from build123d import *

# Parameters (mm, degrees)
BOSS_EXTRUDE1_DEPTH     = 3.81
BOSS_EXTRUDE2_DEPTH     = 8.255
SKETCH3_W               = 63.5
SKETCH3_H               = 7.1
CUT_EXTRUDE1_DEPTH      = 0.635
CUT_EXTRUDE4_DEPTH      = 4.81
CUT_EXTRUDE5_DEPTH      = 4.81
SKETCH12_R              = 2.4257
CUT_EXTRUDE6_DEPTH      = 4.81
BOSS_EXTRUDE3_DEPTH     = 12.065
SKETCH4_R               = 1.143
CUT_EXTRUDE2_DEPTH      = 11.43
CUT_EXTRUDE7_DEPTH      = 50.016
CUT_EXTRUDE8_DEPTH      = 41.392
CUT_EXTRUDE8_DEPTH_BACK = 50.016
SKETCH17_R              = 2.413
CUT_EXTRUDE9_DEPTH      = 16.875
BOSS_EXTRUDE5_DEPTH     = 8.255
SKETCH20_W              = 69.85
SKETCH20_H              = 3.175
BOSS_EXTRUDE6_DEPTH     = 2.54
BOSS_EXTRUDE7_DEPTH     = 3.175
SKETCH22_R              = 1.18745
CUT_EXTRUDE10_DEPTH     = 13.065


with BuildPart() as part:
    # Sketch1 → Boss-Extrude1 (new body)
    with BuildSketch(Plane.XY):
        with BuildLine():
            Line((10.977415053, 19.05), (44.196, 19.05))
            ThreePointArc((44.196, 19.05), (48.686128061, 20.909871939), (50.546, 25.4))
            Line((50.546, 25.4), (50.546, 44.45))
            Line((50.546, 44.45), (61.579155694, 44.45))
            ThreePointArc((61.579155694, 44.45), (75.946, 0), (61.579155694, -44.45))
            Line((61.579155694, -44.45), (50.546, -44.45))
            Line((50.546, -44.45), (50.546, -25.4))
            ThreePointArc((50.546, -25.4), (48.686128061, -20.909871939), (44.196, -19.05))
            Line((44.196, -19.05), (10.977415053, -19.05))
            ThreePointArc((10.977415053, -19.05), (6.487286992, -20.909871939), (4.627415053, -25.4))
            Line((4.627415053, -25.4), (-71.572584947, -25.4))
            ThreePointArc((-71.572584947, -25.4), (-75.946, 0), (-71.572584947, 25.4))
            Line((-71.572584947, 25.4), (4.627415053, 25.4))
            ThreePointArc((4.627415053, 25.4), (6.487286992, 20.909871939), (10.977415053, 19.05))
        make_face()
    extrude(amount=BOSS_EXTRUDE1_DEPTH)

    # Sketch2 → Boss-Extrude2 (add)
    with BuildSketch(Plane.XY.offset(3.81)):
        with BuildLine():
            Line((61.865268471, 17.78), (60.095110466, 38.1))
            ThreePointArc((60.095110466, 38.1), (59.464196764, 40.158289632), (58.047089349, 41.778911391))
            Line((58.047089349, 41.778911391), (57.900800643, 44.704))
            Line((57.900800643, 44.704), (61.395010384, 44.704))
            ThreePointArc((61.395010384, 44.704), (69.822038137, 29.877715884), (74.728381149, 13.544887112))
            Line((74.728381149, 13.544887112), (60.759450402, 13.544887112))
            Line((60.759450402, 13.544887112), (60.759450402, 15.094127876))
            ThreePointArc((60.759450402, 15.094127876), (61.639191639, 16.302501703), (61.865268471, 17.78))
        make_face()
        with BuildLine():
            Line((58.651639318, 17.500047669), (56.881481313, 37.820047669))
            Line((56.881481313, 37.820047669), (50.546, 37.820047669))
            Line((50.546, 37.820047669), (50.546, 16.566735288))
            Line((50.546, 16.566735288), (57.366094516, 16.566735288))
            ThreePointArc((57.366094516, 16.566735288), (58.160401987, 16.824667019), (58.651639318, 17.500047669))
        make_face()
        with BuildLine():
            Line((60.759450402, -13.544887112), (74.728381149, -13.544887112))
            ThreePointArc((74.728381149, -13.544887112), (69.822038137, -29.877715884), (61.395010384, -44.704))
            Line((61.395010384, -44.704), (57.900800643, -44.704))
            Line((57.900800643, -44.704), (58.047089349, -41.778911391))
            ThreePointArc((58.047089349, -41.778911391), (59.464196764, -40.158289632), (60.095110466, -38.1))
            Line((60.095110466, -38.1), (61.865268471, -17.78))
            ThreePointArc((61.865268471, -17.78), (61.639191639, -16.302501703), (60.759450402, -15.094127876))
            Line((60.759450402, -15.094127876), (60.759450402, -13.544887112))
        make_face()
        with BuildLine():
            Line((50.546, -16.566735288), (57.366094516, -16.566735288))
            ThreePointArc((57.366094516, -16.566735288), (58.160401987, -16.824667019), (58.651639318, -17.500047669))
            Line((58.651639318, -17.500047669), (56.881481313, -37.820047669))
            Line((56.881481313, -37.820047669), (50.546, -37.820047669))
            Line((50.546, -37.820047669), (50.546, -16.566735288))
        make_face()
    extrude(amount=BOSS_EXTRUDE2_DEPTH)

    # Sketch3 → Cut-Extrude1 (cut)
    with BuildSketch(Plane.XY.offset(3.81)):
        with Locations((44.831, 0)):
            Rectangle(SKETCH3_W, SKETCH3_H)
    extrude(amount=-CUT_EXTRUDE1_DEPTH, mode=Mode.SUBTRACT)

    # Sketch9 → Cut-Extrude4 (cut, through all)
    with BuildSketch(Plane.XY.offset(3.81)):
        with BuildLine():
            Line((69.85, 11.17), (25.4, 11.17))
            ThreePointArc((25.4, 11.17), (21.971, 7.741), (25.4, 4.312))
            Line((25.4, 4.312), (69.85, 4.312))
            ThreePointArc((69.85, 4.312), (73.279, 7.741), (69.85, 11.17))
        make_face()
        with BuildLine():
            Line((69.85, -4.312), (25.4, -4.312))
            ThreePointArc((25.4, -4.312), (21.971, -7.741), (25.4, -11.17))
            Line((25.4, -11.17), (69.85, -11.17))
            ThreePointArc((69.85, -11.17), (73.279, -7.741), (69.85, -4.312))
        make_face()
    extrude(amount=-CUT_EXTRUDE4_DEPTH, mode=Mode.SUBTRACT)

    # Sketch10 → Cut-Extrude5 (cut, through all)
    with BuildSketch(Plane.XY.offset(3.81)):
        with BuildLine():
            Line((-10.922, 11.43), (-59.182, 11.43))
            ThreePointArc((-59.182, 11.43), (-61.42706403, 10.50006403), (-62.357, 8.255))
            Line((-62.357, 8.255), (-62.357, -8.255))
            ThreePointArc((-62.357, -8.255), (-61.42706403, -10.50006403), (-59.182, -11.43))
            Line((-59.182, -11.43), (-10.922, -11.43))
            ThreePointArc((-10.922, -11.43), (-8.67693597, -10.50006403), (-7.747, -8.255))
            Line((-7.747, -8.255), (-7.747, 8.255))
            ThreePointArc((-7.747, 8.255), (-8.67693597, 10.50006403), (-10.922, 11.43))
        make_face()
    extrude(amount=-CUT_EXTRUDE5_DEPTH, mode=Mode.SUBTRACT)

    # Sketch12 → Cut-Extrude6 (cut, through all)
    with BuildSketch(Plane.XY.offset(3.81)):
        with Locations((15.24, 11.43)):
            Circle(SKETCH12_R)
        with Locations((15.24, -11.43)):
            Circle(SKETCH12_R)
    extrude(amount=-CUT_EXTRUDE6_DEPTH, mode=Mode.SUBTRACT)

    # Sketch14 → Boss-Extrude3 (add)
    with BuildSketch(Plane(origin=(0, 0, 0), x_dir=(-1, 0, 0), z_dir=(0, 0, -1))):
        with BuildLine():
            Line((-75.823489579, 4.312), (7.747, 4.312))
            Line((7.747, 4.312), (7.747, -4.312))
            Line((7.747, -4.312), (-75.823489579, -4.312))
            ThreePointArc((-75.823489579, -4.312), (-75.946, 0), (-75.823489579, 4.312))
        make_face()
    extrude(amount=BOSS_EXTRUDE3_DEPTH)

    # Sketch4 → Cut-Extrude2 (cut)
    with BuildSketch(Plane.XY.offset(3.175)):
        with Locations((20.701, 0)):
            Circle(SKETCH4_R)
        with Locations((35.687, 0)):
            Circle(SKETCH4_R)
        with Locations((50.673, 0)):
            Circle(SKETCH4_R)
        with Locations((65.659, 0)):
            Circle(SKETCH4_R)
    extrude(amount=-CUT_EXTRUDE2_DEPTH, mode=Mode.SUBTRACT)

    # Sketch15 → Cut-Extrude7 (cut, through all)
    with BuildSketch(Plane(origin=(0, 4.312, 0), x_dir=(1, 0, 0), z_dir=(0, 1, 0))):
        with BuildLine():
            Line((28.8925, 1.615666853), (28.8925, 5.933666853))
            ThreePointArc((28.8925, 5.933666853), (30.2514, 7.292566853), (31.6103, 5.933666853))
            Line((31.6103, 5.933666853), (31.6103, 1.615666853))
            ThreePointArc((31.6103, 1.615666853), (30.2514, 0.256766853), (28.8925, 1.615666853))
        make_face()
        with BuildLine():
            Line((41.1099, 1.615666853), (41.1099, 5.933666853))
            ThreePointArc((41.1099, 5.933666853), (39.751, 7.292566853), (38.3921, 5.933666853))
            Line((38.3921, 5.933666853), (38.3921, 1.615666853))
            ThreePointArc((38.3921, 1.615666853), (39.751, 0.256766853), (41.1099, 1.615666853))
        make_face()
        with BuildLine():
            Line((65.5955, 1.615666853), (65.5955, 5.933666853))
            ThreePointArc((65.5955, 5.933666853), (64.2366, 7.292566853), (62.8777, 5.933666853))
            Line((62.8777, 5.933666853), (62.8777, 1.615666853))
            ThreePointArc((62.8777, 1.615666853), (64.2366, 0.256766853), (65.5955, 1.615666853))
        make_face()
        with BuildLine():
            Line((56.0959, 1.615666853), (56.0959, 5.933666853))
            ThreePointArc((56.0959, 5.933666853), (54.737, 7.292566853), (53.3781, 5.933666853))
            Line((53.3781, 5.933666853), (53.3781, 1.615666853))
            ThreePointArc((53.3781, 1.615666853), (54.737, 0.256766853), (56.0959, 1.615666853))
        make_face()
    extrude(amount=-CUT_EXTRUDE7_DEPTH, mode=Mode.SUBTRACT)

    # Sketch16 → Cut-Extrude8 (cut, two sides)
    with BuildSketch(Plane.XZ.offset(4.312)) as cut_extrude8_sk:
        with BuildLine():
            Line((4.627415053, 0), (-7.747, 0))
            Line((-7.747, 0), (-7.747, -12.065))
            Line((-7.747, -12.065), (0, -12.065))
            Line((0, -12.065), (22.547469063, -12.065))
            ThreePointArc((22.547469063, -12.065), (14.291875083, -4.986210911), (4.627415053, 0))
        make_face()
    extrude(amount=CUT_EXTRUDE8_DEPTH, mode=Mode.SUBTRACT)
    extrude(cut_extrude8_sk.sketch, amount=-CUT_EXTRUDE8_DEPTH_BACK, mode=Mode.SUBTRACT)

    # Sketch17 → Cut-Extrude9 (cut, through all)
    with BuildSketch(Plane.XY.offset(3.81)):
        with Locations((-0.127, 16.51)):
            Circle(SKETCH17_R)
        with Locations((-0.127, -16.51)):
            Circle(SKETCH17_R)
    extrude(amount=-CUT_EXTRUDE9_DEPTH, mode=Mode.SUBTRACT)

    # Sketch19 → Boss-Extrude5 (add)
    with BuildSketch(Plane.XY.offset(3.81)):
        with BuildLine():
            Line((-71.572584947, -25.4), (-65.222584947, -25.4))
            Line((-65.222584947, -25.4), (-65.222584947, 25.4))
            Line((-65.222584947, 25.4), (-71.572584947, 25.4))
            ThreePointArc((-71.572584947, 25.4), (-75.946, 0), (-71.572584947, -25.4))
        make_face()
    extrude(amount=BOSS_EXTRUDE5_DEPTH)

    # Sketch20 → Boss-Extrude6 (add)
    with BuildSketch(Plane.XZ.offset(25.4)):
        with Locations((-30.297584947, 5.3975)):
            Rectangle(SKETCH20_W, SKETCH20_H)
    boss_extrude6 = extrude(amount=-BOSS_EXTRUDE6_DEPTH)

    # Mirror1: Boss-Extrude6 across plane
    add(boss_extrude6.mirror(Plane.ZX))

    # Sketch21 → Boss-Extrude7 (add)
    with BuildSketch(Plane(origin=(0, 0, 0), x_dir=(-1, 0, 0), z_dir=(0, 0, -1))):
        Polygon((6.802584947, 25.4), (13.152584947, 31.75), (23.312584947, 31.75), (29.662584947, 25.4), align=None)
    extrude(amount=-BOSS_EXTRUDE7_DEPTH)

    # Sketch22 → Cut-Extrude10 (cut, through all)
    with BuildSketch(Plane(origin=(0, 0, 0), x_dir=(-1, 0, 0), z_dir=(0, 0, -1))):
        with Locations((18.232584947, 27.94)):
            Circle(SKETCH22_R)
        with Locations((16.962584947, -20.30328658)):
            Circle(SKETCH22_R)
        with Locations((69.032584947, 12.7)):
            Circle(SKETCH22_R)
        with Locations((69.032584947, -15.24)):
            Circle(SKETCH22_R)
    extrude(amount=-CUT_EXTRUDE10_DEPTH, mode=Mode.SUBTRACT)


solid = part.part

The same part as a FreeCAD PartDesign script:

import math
import FreeCAD as App
import Part
import Sketcher

V = App.Vector
Q = App.Units.Quantity


def add_polygon(sketch, points):
    """Adds a closed chain of lines whose ends are joined by coincident constraints."""
    first, n = sketch.GeometryCount, len(points)
    for a, b in zip(points, points[1:] + points[:1]):
        sketch.addGeometry(Part.LineSegment(App.Vector(*a, 0), App.Vector(*b, 0)), False)
    for i in range(n):
        sketch.addConstraint(Sketcher.Constraint("Coincident", first + i, 2, first + (i + 1) % n, 1))

doc = App.newDocument("Part")
body = doc.addObject("PartDesign::Body", "Body")

sketch1 = doc.addObject("Sketcher::SketchObject", "Sketch")
body.addObject(sketch1)
sketch1.AttachmentSupport = (doc.XY_Plane, [""])
sketch1.MapMode = "FlatFace"
sketch1.addGeometry([
    Part.LineSegment(V(44, 19, 0), V(11, 19, 0)),
    Part.ArcOfCircle(Part.Circle(V(11, 25, 0), V(0, 0, 1), 6), math.radians(180), math.radians(270)),
    Part.LineSegment(V(5, 25, 0), V(-72, 25, 0)),
    Part.ArcOfCircle(Part.Circle(V(0, 0, 0), V(0, 0, 1), 76), math.radians(160), math.radians(200)),
    Part.LineSegment(V(-72, -25, 0), V(5, -25, 0)),
    Part.ArcOfCircle(Part.Circle(V(11, -25, 0), V(0, 0, 1), 6), math.radians(90), math.radians(180)),
    Part.LineSegment(V(11, -19, 0), V(44, -19, 0)),
    Part.ArcOfCircle(Part.Circle(V(44, -25, 0), V(0, 0, 1), 6), math.radians(0), math.radians(90)),
    Part.LineSegment(V(51, -25, 0), V(51, -44, 0)),
    Part.LineSegment(V(51, -44, 0), V(62, -44, 0)),
    Part.ArcOfCircle(Part.Circle(V(0, 0, 0), V(0, 0, 1), 76), math.radians(-36), math.radians(36)),
    Part.LineSegment(V(62, 44, 0), V(51, 44, 0)),
    Part.LineSegment(V(51, 44, 0), V(51, 25, 0)),
    Part.ArcOfCircle(Part.Circle(V(44, 25, 0), V(0, 0, 1), 6), math.radians(-90), math.radians(0)),
], False)
sketch1.addConstraint([
    Sketcher.Constraint("Tangent", 0, 2, 1, 2),
    Sketcher.Constraint("Coincident", 1, 1, 2, 1),
    Sketcher.Constraint("Coincident", 2, 2, 3, 1),
    Sketcher.Constraint("Coincident", 3, 2, 4, 1),
    Sketcher.Constraint("Coincident", 4, 2, 5, 2),
    Sketcher.Constraint("Tangent", 5, 1, 6, 1),
    Sketcher.Constraint("Tangent", 6, 2, 7, 2),
    Sketcher.Constraint("Tangent", 7, 1, 8, 1),
    Sketcher.Constraint("Coincident", 8, 2, 9, 1),
    Sketcher.Constraint("Coincident", 9, 2, 10, 1),
    Sketcher.Constraint("Coincident", 10, 2, 11, 1),
    Sketcher.Constraint("Coincident", 11, 2, 12, 1),
    Sketcher.Constraint("Tangent", 12, 2, 13, 2),
    Sketcher.Constraint("Tangent", 13, 1, 0, 1),
    Sketcher.Constraint("Horizontal", 0),
    Sketcher.Constraint("Horizontal", 2),
    Sketcher.Constraint("Horizontal", 4),
    Sketcher.Constraint("Horizontal", 6),
    Sketcher.Constraint("Vertical", 8),
    Sketcher.Constraint("Horizontal", 9),
    Sketcher.Constraint("Horizontal", 11),
    Sketcher.Constraint("Vertical", 12),
    Sketcher.Constraint("Coincident", 3, 3, -1, 1),
    Sketcher.Constraint("Coincident", 10, 3, -1, 1),
    Sketcher.Constraint("Equal", 1, 5),
    Sketcher.Constraint("Equal", 5, 7),
    Sketcher.Constraint("Equal", 3, 10),
    Sketcher.Constraint("Equal", 7, 13),
    Sketcher.Constraint("Symmetric", 1, 3, 5, 3, -1),
    Sketcher.Constraint("Symmetric", 8, 2, 11, 2, -1),
    Sketcher.Constraint("Horizontal", 13, 3, 1, 1),
    Sketcher.Constraint("Horizontal", 7, 3, 3, 2),
    Sketcher.Constraint("DistanceX", 2, 2, 2, 1, Q("3 in")),
    Sketcher.Constraint("Radius", 1, Q("0.25 in")),
    Sketcher.Constraint("Radius", 3, Q("2.99 in")),
    Sketcher.Constraint("DistanceY", -1, 1, 1, 3, Q("1 in")),
    Sketcher.Constraint("DistanceY", 8, 2, 6, 2, Q("1 in")),
    Sketcher.Constraint("DistanceX", -1, 1, 7, 3, Q("1.74 in")),
])
pad1 = doc.addObject("PartDesign::Pad", "Pad")
body.addObject(pad1)
pad1.Profile = sketch1
pad1.Length = Q("0.15 in")

sketch2 = doc.addObject("Sketcher::SketchObject", "Sketch001")
body.addObject(sketch2)
sketch2.AttachmentSupport = (doc.XY_Plane, [""])
sketch2.MapMode = "FlatFace"
sketch2.AttachmentOffset = App.Placement(V(0, 0, 0.15 * 25.4), App.Rotation())
sketch2.addGeometry([
    Part.LineSegment(V(60.1, 38.1, 0), V(61.9, 17.8, 0)),
    Part.ArcOfCircle(Part.Circle(V(58.7, 17.5, 0), V(0, 0, 1), 3.2), math.radians(-50), math.radians(5)),
    Part.LineSegment(V(60.8, 15.1, 0), V(60.8, 13.5, 0)),
    Part.LineSegment(V(60.8, 13.5, 0), V(74.7, 13.5, 0)),
    Part.ArcOfCircle(Part.Circle(V(0, 0, 0), V(0, 0, 1), 75.9), math.radians(10), math.radians(36)),
    Part.LineSegment(V(61.4, 44.7, 0), V(57.9, 44.7, 0)),
    Part.LineSegment(V(57.9, 44.7, 0), V(58, 41.8, 0)),
    Part.ArcOfCircle(Part.Circle(V(55, 37.7, 0), V(0, 0, 1), 5.2), math.radians(5), math.radians(53)),
    Part.LineSegment(V(58.7, 17.5, 0), V(56.9, 37.8, 0)),
    Part.LineSegment(V(56.9, 37.8, 0), V(50.5, 37.8, 0)),
    Part.LineSegment(V(50.5, 37.8, 0), V(50.5, 16.6, 0)),
    Part.LineSegment(V(50.5, 16.6, 0), V(57.4, 16.6, 0)),
    Part.ArcOfCircle(Part.Circle(V(57.4, 17.9, 0), V(0, 0, 1), 1.4), math.radians(-90), math.radians(-18)),
    Part.LineSegment(V(74.7, -13.5, 0), V(60.8, -13.5, 0)),
    Part.LineSegment(V(60.8, -13.5, 0), V(60.8, -15.1, 0)),
    Part.ArcOfCircle(Part.Circle(V(58.7, -17.5, 0), V(0, 0, 1), 3.2), math.radians(-5), math.radians(50)),
    Part.LineSegment(V(61.9, -17.8, 0), V(60.1, -38.1, 0)),
    Part.ArcOfCircle(Part.Circle(V(55, -37.7, 0), V(0, 0, 1), 5.2), math.radians(-53), math.radians(-5)),
    Part.LineSegment(V(58, -41.8, 0), V(57.9, -44.7, 0)),
    Part.LineSegment(V(57.9, -44.7, 0), V(61.4, -44.7, 0)),
    Part.ArcOfCircle(Part.Circle(V(0, 0, 0), V(0, 0, 1), 75.9), math.radians(-36), math.radians(-10)),
    Part.LineSegment(V(57.4, -16.6, 0), V(50.5, -16.6, 0)),
    Part.LineSegment(V(50.5, -16.6, 0), V(50.5, -37.8, 0)),
    Part.LineSegment(V(50.5, -37.8, 0), V(56.9, -37.8, 0)),
    Part.LineSegment(V(56.9, -37.8, 0), V(58.7, -17.5, 0)),
    Part.ArcOfCircle(Part.Circle(V(57.4, -17.9, 0), V(0, 0, 1), 1.4), math.radians(18), math.radians(90)),
], False)
sketch2.addConstraint([
    Sketcher.Constraint("Tangent", 0, 2, 1, 2),
    Sketcher.Constraint("Coincident", 1, 1, 2, 1),
    Sketcher.Constraint("Coincident", 2, 2, 3, 1),
    Sketcher.Constraint("Coincident", 3, 2, 4, 1),
    Sketcher.Constraint("Coincident", 4, 2, 5, 1),
    Sketcher.Constraint("Coincident", 5, 2, 6, 1),
    Sketcher.Constraint("Coincident", 6, 2, 7, 2),
    Sketcher.Constraint("Tangent", 7, 1, 0, 1),
    Sketcher.Constraint("Coincident", 8, 2, 9, 1),
    Sketcher.Constraint("Coincident", 9, 2, 10, 1),
    Sketcher.Constraint("Coincident", 10, 2, 11, 1),
    Sketcher.Constraint("Tangent", 11, 2, 12, 1),
    Sketcher.Constraint("Coincident", 12, 2, 8, 1),
    Sketcher.Constraint("Coincident", 13, 2, 14, 1),
    Sketcher.Constraint("Coincident", 14, 2, 15, 2),
    Sketcher.Constraint("Tangent", 15, 1, 16, 1),
    Sketcher.Constraint("Tangent", 16, 2, 17, 2),
    Sketcher.Constraint("Coincident", 17, 1, 18, 1),
    Sketcher.Constraint("Coincident", 18, 2, 19, 1),
    Sketcher.Constraint("Coincident", 19, 2, 20, 1),
    Sketcher.Constraint("Coincident", 20, 2, 13, 1),
    Sketcher.Constraint("Coincident", 21, 2, 22, 1),
    Sketcher.Constraint("Coincident", 22, 2, 23, 1),
    Sketcher.Constraint("Coincident", 23, 2, 24, 1),
    Sketcher.Constraint("Coincident", 24, 2, 25, 1),
    Sketcher.Constraint("Tangent", 25, 2, 21, 1),
    Sketcher.Constraint("Vertical", 2),
    Sketcher.Constraint("Horizontal", 3),
    Sketcher.Constraint("Horizontal", 5),
    Sketcher.Constraint("Horizontal", 9),
    Sketcher.Constraint("Vertical", 10),
    Sketcher.Constraint("Horizontal", 11),
    Sketcher.Constraint("Horizontal", 13),
    Sketcher.Constraint("Vertical", 14),
    Sketcher.Constraint("Horizontal", 19),
    Sketcher.Constraint("Horizontal", 21),
    Sketcher.Constraint("Vertical", 22),
    Sketcher.Constraint("Horizontal", 23),
    Sketcher.Constraint("Coincident", 4, 3, -1, 1),
    Sketcher.Constraint("Coincident", 20, 3, -1, 1),
    Sketcher.Constraint("Equal", 1, 15),
    Sketcher.Constraint("Equal", 7, 17),
    Sketcher.Constraint("Equal", 4, 20),
    Sketcher.Constraint("Equal", 12, 25),
    Sketcher.Constraint("Symmetric", 1, 3, 15, 3, -1),
    Sketcher.Constraint("Symmetric", 7, 3, 17, 3, -1),
    Sketcher.Constraint("Symmetric", 12, 3, 25, 3, -1),
    Sketcher.Constraint("Symmetric", 2, 2, 13, 2, -1),
    Sketcher.Constraint("Symmetric", 5, 2, 18, 2, -1),
    Sketcher.Constraint("Symmetric", 9, 2, 22, 2, -1),
    Sketcher.Constraint("Parallel", 0, 8),
    Sketcher.Constraint("Parallel", 16, 24),
    Sketcher.Constraint("Vertical", 6, 2, 17, 1),
    Sketcher.Constraint("Vertical", 8, 2, 23, 2),
    Sketcher.Constraint("Equal", 0, 8),
    Sketcher.Constraint("Radius", 4, Q("2.99 in")),
    Sketcher.Constraint("DistanceY", -1, 1, 0, 2, Q("0.7 in")),
    Sketcher.Constraint("DistanceY", -1, 1, 7, 1, Q("1.5 in")),
    Sketcher.Constraint("DistanceY", -1, 1, 4, 2, Q("1.76 in")),
    Sketcher.Constraint("DistanceX", -1, 1, 9, 2, Q("1.99 in")),
    Sketcher.Constraint("Radius", 12, 1.352011),
    Sketcher.Constraint("Radius", 1, 3.160443),
    Sketcher.Constraint("Radius", 7, 5.150666),
    Sketcher.Constraint("DistanceY", 1, 3, 7, 3, Q("0.7931999 in")),
    Sketcher.Constraint("DistanceX", 3, 1, 3, 2, 13.968931),
    Sketcher.Constraint("DistanceX", 5, 2, 5, 1, 3.49421),
    Sketcher.Constraint("DistanceX", 9, 2, 9, 1, 6.335481),
    Sketcher.Constraint("DistanceY", 2, 2, 2, 1, 1.549241),
    Sketcher.Constraint("DistanceX", 1, 3, 1, 1, 2.042701),
    Sketcher.Constraint("DistanceY", 12, 2, 12, 3, 0.418699),
    Sketcher.Constraint("DistanceX", -1, 1, 6, 2, 58.047089),
    Sketcher.Constraint("DistanceY", 12, 3, 7, 3, 19.734251),
])
pad2 = doc.addObject("PartDesign::Pad", "Pad001")
body.addObject(pad2)
pad2.Profile = sketch2
pad2.Length = Q("0.325 in")

sketch3 = doc.addObject("Sketcher::SketchObject", "Sketch002")
body.addObject(sketch3)
sketch3.AttachmentSupport = (doc.XY_Plane, [""])
sketch3.MapMode = "FlatFace"
sketch3.AttachmentOffset = App.Placement(V(0, 0, 0.15 * 25.4), App.Rotation())
add_polygon(sketch3, [(13, 4), (13, -4), (77, -4), (77, 4)])
sketch3.addConstraint([
    Sketcher.Constraint("Vertical", 0),
    Sketcher.Constraint("Horizontal", 1),
    Sketcher.Constraint("Vertical", 2),
    Sketcher.Constraint("Horizontal", 3),
    Sketcher.Constraint("DistanceX", 1, 1, 1, 2, Q("2.5 in")),
    Sketcher.Constraint("DistanceX", -1, 1, 0, 2, Q("0.515 in")),
    Sketcher.Constraint("DistanceY", 0, 2, 0, 1, 7.1),
    Sketcher.Constraint("DistanceY", 0, 2, -1, 1, 3.55),
])
pocket1 = doc.addObject("PartDesign::Pocket", "Pocket")
body.addObject(pocket1)
pocket1.Profile = sketch3
pocket1.Length = Q("0.025 in")

sketch4 = doc.addObject("Sketcher::SketchObject", "Sketch003")
body.addObject(sketch4)
sketch4.AttachmentSupport = (doc.XY_Plane, [""])
sketch4.MapMode = "FlatFace"
sketch4.AttachmentOffset = App.Placement(V(0, 0, 0.15 * 25.4), App.Rotation())
sketch4.addGeometry([
    Part.LineSegment(V(69.8, 11.2, 0), V(25.4, 11.2, 0)),
    Part.ArcOfCircle(Part.Circle(V(25.4, 7.7, 0), V(0, 0, 1), 3.4), math.radians(90), math.radians(270)),
    Part.LineSegment(V(25.4, 4.3, 0), V(69.8, 4.3, 0)),
    Part.ArcOfCircle(Part.Circle(V(69.8, 7.7, 0), V(0, 0, 1), 3.4), math.radians(-90), math.radians(90)),
    Part.LineSegment(V(69.8, -4.3, 0), V(25.4, -4.3, 0)),
    Part.ArcOfCircle(Part.Circle(V(25.4, -7.7, 0), V(0, 0, 1), 3.4), math.radians(90), math.radians(270)),
    Part.LineSegment(V(25.4, -11.2, 0), V(69.8, -11.2, 0)),
    Part.ArcOfCircle(Part.Circle(V(69.8, -7.7, 0), V(0, 0, 1), 3.4), math.radians(-90), math.radians(90)),
], False)
sketch4.addConstraint([
    Sketcher.Constraint("Tangent", 0, 2, 1, 1),
    Sketcher.Constraint("Tangent", 1, 2, 2, 1),
    Sketcher.Constraint("Tangent", 2, 2, 3, 1),
    Sketcher.Constraint("Tangent", 3, 2, 0, 1),
    Sketcher.Constraint("Tangent", 4, 2, 5, 1),
    Sketcher.Constraint("Tangent", 5, 2, 6, 1),
    Sketcher.Constraint("Tangent", 6, 2, 7, 1),
    Sketcher.Constraint("Tangent", 7, 2, 4, 1),
    Sketcher.Constraint("Horizontal", 0),
    Sketcher.Constraint("Horizontal", 2),
    Sketcher.Constraint("Horizontal", 4),
    Sketcher.Constraint("Horizontal", 6),
    Sketcher.Constraint("Equal", 3, 5),
    Sketcher.Constraint("Symmetric", 1, 3, 5, 3, -1),
    Sketcher.Constraint("Vertical", 3, 3, 7, 3),
    Sketcher.Constraint("DistanceX", -1, 1, 1, 3, Q("1 in")),
    Sketcher.Constraint("Radius", 1, Q("0.135 in")),
    Sketcher.Constraint("DistanceX", 0, 2, 0, 1, Q("1.75 in")),
    Sketcher.Constraint("DistanceY", -1, 1, 1, 3, 7.741),
])
pocket2 = doc.addObject("PartDesign::Pocket", "Pocket001")
body.addObject(pocket2)
pocket2.Profile = sketch4
pocket2.Type = "ThroughAll"

sketch5 = doc.addObject("Sketcher::SketchObject", "Sketch004")
body.addObject(sketch5)
sketch5.AttachmentSupport = (doc.XY_Plane, [""])
sketch5.MapMode = "FlatFace"
sketch5.AttachmentOffset = App.Placement(V(0, 0, 0.15 * 25.4), App.Rotation())
sketch5.addGeometry([
    Part.LineSegment(V(-10.9, 11.4, 0), V(-59.2, 11.4, 0)),
    Part.ArcOfCircle(Part.Circle(V(-59.2, 8.3, 0), V(0, 0, 1), 3.2), math.radians(90), math.radians(180)),
    Part.LineSegment(V(-62.4, 8.3, 0), V(-62.4, -8.3, 0)),
    Part.ArcOfCircle(Part.Circle(V(-59.2, -8.3, 0), V(0, 0, 1), 3.2), math.radians(-180), math.radians(-90)),
    Part.LineSegment(V(-59.2, -11.4, 0), V(-10.9, -11.4, 0)),
    Part.ArcOfCircle(Part.Circle(V(-10.9, -8.3, 0), V(0, 0, 1), 3.2), math.radians(-90), math.radians(0)),
    Part.LineSegment(V(-7.7, -8.3, 0), V(-7.7, 8.3, 0)),
    Part.ArcOfCircle(Part.Circle(V(-10.9, 8.3, 0), V(0, 0, 1), 3.2), math.radians(0), math.radians(90)),
], False)
sketch5.addConstraint([
    Sketcher.Constraint("Tangent", 0, 2, 1, 1),
    Sketcher.Constraint("Tangent", 1, 2, 2, 1),
    Sketcher.Constraint("Tangent", 2, 2, 3, 1),
    Sketcher.Constraint("Tangent", 3, 2, 4, 1),
    Sketcher.Constraint("Tangent", 4, 2, 5, 1),
    Sketcher.Constraint("Tangent", 5, 2, 6, 1),
    Sketcher.Constraint("Tangent", 6, 2, 7, 1),
    Sketcher.Constraint("Tangent", 7, 2, 0, 1),
    Sketcher.Constraint("Horizontal", 0),
    Sketcher.Constraint("Vertical", 2),
    Sketcher.Constraint("Horizontal", 4),
    Sketcher.Constraint("Vertical", 6),
    Sketcher.Constraint("Equal", 1, 3),
    Sketcher.Constraint("Equal", 3, 5),
    Sketcher.Constraint("Equal", 5, 7),
    Sketcher.Constraint("DistanceX", 0, 2, 0, 1, Q("1.9 in")),
    Sketcher.Constraint("Radius", 1, Q("0.125 in")),
    Sketcher.Constraint("DistanceY", 2, 2, 2, 1, Q("0.65 in")),
    Sketcher.Constraint("DistanceX", 1, 3, -1, 1, Q("2.33 in")),
    Sketcher.Constraint("DistanceY", -1, 1, 0, 2, Q("0.45 in")),
])
pocket3 = doc.addObject("PartDesign::Pocket", "Pocket002")
body.addObject(pocket3)
pocket3.Profile = sketch5
pocket3.Type = "ThroughAll"

sketch6 = doc.addObject("Sketcher::SketchObject", "Sketch005")
body.addObject(sketch6)
sketch6.AttachmentSupport = (doc.XY_Plane, [""])
sketch6.MapMode = "FlatFace"
sketch6.AttachmentOffset = App.Placement(V(0, 0, 0.15 * 25.4), App.Rotation())
sketch6.addGeometry([
    Part.Circle(V(15.2, 11.4, 0), V(0, 0, 1), 2.4),
    Part.Circle(V(15.2, -11.4, 0), V(0, 0, 1), 2.4),
], False)
sketch6.addConstraint([
    Sketcher.Constraint("Equal", 0, 1),
    Sketcher.Constraint("Symmetric", 0, 3, 1, 3, -1),
    Sketcher.Constraint("Diameter", 0, Q("0.191 in")),
    Sketcher.Constraint("DistanceX", -1, 1, 0, 3, Q("0.6 in")),
    Sketcher.Constraint("DistanceY", 1, 3, 0, 3, Q("0.9 in")),
])
pocket4 = doc.addObject("PartDesign::Pocket", "Pocket003")
body.addObject(pocket4)
pocket4.Profile = sketch6
pocket4.Type = "ThroughAll"

sketch7 = doc.addObject("Sketcher::SketchObject", "Sketch006")
body.addObject(sketch7)
sketch7.AttachmentSupport = (doc.XY_Plane, [""])
sketch7.MapMode = "FlatFace"
sketch7.addGeometry([
    Part.LineSegment(V(-8, 4, 0), V(76, 4, 0)),
    Part.ArcOfCircle(Part.Circle(V(0, 0, 0), V(0, 0, 1), 76), math.radians(-3.25), math.radians(3.25)),
    Part.LineSegment(V(76, -4, 0), V(-8, -4, 0)),
    Part.LineSegment(V(-8, -4, 0), V(-8, 4, 0)),
], False)
sketch7.addConstraint([
    Sketcher.Constraint("Coincident", 0, 2, 1, 2),
    Sketcher.Constraint("Coincident", 1, 1, 2, 1),
    Sketcher.Constraint("Coincident", 2, 2, 3, 1),
    Sketcher.Constraint("Coincident", 3, 2, 0, 1),
    Sketcher.Constraint("Horizontal", 0),
    Sketcher.Constraint("Horizontal", 2),
    Sketcher.Constraint("Vertical", 3),
    Sketcher.Constraint("Coincident", 1, 3, -1, 1),
    Sketcher.Constraint("Vertical", 0, 2, 1, 1),
    Sketcher.Constraint("Radius", 1, Q("2.99 in")),
    Sketcher.Constraint("DistanceX", 2, 2, -1, 1, Q("0.305 in")),
    Sketcher.Constraint("DistanceY", 3, 1, 3, 2, 8.624),
])
pad3 = doc.addObject("PartDesign::Pad", "Pad002")
body.addObject(pad3)
pad3.Profile = sketch7
pad3.Length = Q("0.475 in")
pad3.Reversed = True

sketch8 = doc.addObject("Sketcher::SketchObject", "Sketch007")
body.addObject(sketch8)
sketch8.AttachmentSupport = (doc.XY_Plane, [""])
sketch8.MapMode = "FlatFace"
sketch8.AttachmentOffset = App.Placement(V(0, 0, 0.125 * 25.4), App.Rotation())
sketch8.addGeometry([
    Part.Circle(V(20.7, 0, 0), V(0, 0, 1), 1.1),
    Part.Circle(V(35.7, 0, 0), V(0, 0, 1), 1.1),
    Part.Circle(V(50.7, 0, 0), V(0, 0, 1), 1.1),
    Part.Circle(V(65.7, 0, 0), V(0, 0, 1), 1.1),
], False)
sketch8.addConstraint([
    Sketcher.Constraint("Equal", 0, 1),
    Sketcher.Constraint("Equal", 1, 2),
    Sketcher.Constraint("Equal", 2, 3),
    Sketcher.Constraint("PointOnObject", 0, 3, -1),
    Sketcher.Constraint("PointOnObject", 1, 3, -1),
    Sketcher.Constraint("PointOnObject", 2, 3, -1),
    Sketcher.Constraint("PointOnObject", 3, 3, -1),
    Sketcher.Constraint("Diameter", 0, Q("0.09 in")),
    Sketcher.Constraint("DistanceX", 0, 3, 1, 3, Q("0.59 in")),
    Sketcher.Constraint("DistanceX", 1, 3, 2, 3, Q("0.59 in")),
    Sketcher.Constraint("DistanceX", 2, 3, 3, 3, Q("0.59 in")),
    Sketcher.Constraint("DistanceX", -1, 1, 0, 3, Q("0.815 in")),
])
pocket5 = doc.addObject("PartDesign::Pocket", "Pocket004")
body.addObject(pocket5)
pocket5.Profile = sketch8
pocket5.Length = Q("0.45 in")

sketch9 = doc.addObject("Sketcher::SketchObject", "Sketch008")
body.addObject(sketch9)
sketch9.AttachmentSupport = (doc.XZ_Plane, [""])
sketch9.MapMode = "FlatFace"
sketch9.AttachmentOffset = App.Placement(V(0, 0, -4.312), App.Rotation())
sketch9.addGeometry([
    Part.LineSegment(V(28.9, -5.9, 0), V(28.9, -1.6, 0)),
    Part.ArcOfCircle(Part.Circle(V(30.3, -1.6, 0), V(0, 0, 1), 1.4), math.radians(0), math.radians(180)),
    Part.LineSegment(V(31.6, -1.6, 0), V(31.6, -5.9, 0)),
    Part.ArcOfCircle(Part.Circle(V(30.3, -5.9, 0), V(0, 0, 1), 1.4), math.radians(180), math.radians(360)),
    Part.LineSegment(V(41.1, -1.6, 0), V(41.1, -5.9, 0)),
    Part.ArcOfCircle(Part.Circle(V(39.8, -5.9, 0), V(0, 0, 1), 1.4), math.radians(180), math.radians(360)),
    Part.LineSegment(V(38.4, -5.9, 0), V(38.4, -1.6, 0)),
    Part.ArcOfCircle(Part.Circle(V(39.8, -1.6, 0), V(0, 0, 1), 1.4), math.radians(0), math.radians(180)),
    Part.LineSegment(V(65.6, -1.6, 0), V(65.6, -5.9, 0)),
    Part.ArcOfCircle(Part.Circle(V(64.2, -5.9, 0), V(0, 0, 1), 1.4), math.radians(180), math.radians(360)),
    Part.LineSegment(V(62.9, -5.9, 0), V(62.9, -1.6, 0)),
    Part.ArcOfCircle(Part.Circle(V(64.2, -1.6, 0), V(0, 0, 1), 1.4), math.radians(0), math.radians(180)),
    Part.LineSegment(V(56.1, -1.6, 0), V(56.1, -5.9, 0)),
    Part.ArcOfCircle(Part.Circle(V(54.7, -5.9, 0), V(0, 0, 1), 1.4), math.radians(180), math.radians(360)),
    Part.LineSegment(V(53.4, -5.9, 0), V(53.4, -1.6, 0)),
    Part.ArcOfCircle(Part.Circle(V(54.7, -1.6, 0), V(0, 0, 1), 1.4), math.radians(0), math.radians(180)),
], False)
sketch9.addConstraint([
    Sketcher.Constraint("Tangent", 0, 2, 1, 2),
    Sketcher.Constraint("Tangent", 1, 1, 2, 1),
    Sketcher.Constraint("Tangent", 2, 2, 3, 2),
    Sketcher.Constraint("Tangent", 3, 1, 0, 1),
    Sketcher.Constraint("Tangent", 4, 2, 5, 2),
    Sketcher.Constraint("Tangent", 5, 1, 6, 1),
    Sketcher.Constraint("Tangent", 6, 2, 7, 2),
    Sketcher.Constraint("Tangent", 7, 1, 4, 1),
    Sketcher.Constraint("Tangent", 8, 2, 9, 2),
    Sketcher.Constraint("Tangent", 9, 1, 10, 1),
    Sketcher.Constraint("Tangent", 10, 2, 11, 2),
    Sketcher.Constraint("Tangent", 11, 1, 8, 1),
    Sketcher.Constraint("Tangent", 12, 2, 13, 2),
    Sketcher.Constraint("Tangent", 13, 1, 14, 1),
    Sketcher.Constraint("Tangent", 14, 2, 15, 2),
    Sketcher.Constraint("Tangent", 15, 1, 12, 1),
    Sketcher.Constraint("Vertical", 0),
    Sketcher.Constraint("Vertical", 2),
    Sketcher.Constraint("Vertical", 4),
    Sketcher.Constraint("Vertical", 6),
    Sketcher.Constraint("Vertical", 8),
    Sketcher.Constraint("Vertical", 10),
    Sketcher.Constraint("Vertical", 12),
    Sketcher.Constraint("Vertical", 14),
    Sketcher.Constraint("Equal", 3, 5),
    Sketcher.Constraint("Equal", 7, 9),
    Sketcher.Constraint("Equal", 11, 13),
    Sketcher.Constraint("Horizontal", 3, 3, 5, 3),
    Sketcher.Constraint("Horizontal", 1, 3, 7, 3),
    Sketcher.Constraint("Horizontal", 5, 3, 9, 3),
    Sketcher.Constraint("Horizontal", 7, 3, 11, 3),
    Sketcher.Constraint("Horizontal", 9, 3, 13, 3),
    Sketcher.Constraint("Horizontal", 11, 3, 15, 3),
    Sketcher.Constraint("DistanceY", 0, 1, 0, 2, Q("0.17 in")),
    Sketcher.Constraint("Radius", 1, Q("0.0535 in")),
    Sketcher.Constraint("DistanceX", 5, 3, 13, 3, Q("0.59 in")),
    Sketcher.Constraint("DistanceX", -1, 1, 1, 3, Q("1.191 in")),
    Sketcher.Constraint("DistanceX", -1, 1, 5, 3, Q("1.565 in")),
    Sketcher.Constraint("DistanceX", -1, 1, 9, 3, Q("2.529 in")),
    Sketcher.Constraint("DistanceY", 1, 3, -1, 1, 1.615667),
])
pocket6 = doc.addObject("PartDesign::Pocket", "Pocket005")
body.addObject(pocket6)
pocket6.Profile = sketch9
pocket6.Type = "ThroughAll"
pocket6.Reversed = True

sketch10 = doc.addObject("Sketcher::SketchObject", "Sketch009")
body.addObject(sketch10)
sketch10.AttachmentSupport = (doc.XZ_Plane, [""])
sketch10.MapMode = "FlatFace"
sketch10.AttachmentOffset = App.Placement(V(0, 0, 4.312), App.Rotation())
sketch10.addGeometry([
    Part.LineSegment(V(5, 0, 0), V(-8, 0, 0)),
    Part.LineSegment(V(-8, 0, 0), V(-8, -12, 0)),
    Part.LineSegment(V(-8, -12, 0), V(23, -12, 0)),
    Part.ArcOfCircle(Part.Circle(V(-12, -44, 0), V(0, 0, 1), 47), math.radians(43), math.radians(69)),
], False)
sketch10.addConstraint([
    Sketcher.Constraint("Coincident", 0, 2, 1, 1),
    Sketcher.Constraint("Coincident", 1, 2, 2, 1),
    Sketcher.Constraint("Coincident", 2, 2, 3, 1),
    Sketcher.Constraint("Coincident", 3, 2, 0, 1),
    Sketcher.Constraint("Horizontal", 0),
    Sketcher.Constraint("Vertical", 1),
    Sketcher.Constraint("Horizontal", 2),
    Sketcher.Constraint("PointOnObject", 0, 2, -1),
    Sketcher.Constraint("DistanceY", 1, 2, 1, 1, Q("0.475 in")),
    Sketcher.Constraint("DistanceX", 0, 2, -1, 1, Q("0.305 in")),
    Sketcher.Constraint("Radius", 3, 46.880806),
    Sketcher.Constraint("DistanceX", 2, 1, 2, 2, 30.294469),
    Sketcher.Constraint("DistanceX", 0, 2, 0, 1, 12.374415),
])
pocket7 = doc.addObject("PartDesign::Pocket", "Pocket006")
body.addObject(pocket7)
pocket7.Profile = sketch10
pocket7.Type = "ThroughAll"
pocket7.Midplane = True

sketch11 = doc.addObject("Sketcher::SketchObject", "Sketch010")
body.addObject(sketch11)
sketch11.AttachmentSupport = (doc.XY_Plane, [""])
sketch11.MapMode = "FlatFace"
sketch11.AttachmentOffset = App.Placement(V(0, 0, 0.15 * 25.4), App.Rotation())
sketch11.addGeometry([
    Part.Circle(V(-0.1, 16.5, 0), V(0, 0, 1), 2.4),
    Part.Circle(V(-0.1, -16.5, 0), V(0, 0, 1), 2.4),
], False)
sketch11.addConstraint([
    Sketcher.Constraint("Equal", 0, 1),
    Sketcher.Constraint("Symmetric", 0, 3, 1, 3, -1),
    Sketcher.Constraint("Diameter", 0, Q("0.19 in")),
    Sketcher.Constraint("DistanceY", 1, 3, 0, 3, Q("1.3 in")),
    Sketcher.Constraint("DistanceX", 0, 3, -1, 1, Q("0.005 in")),
])
pocket8 = doc.addObject("PartDesign::Pocket", "Pocket007")
body.addObject(pocket8)
pocket8.Profile = sketch11
pocket8.Type = "ThroughAll"

sketch12 = doc.addObject("Sketcher::SketchObject", "Sketch011")
body.addObject(sketch12)
sketch12.AttachmentSupport = (doc.XY_Plane, [""])
sketch12.MapMode = "FlatFace"
sketch12.AttachmentOffset = App.Placement(V(0, 0, 0.15 * 25.4), App.Rotation())
sketch12.addGeometry([
    Part.LineSegment(V(-72, -25, 0), V(-65, -25, 0)),
    Part.LineSegment(V(-65, -25, 0), V(-65, 25, 0)),
    Part.LineSegment(V(-65, 25, 0), V(-72, 25, 0)),
    Part.ArcOfCircle(Part.Circle(V(0, 0, 0), V(0, 0, 1), 76), math.radians(160), math.radians(200)),
], False)
sketch12.addConstraint([
    Sketcher.Constraint("Coincident", 0, 2, 1, 1),
    Sketcher.Constraint("Coincident", 1, 2, 2, 1),
    Sketcher.Constraint("Coincident", 2, 2, 3, 1),
    Sketcher.Constraint("Coincident", 3, 2, 0, 1),
    Sketcher.Constraint("Horizontal", 0),
    Sketcher.Constraint("Vertical", 1),
    Sketcher.Constraint("Horizontal", 2),
    Sketcher.Constraint("Coincident", 3, 3, -1, 1),
    Sketcher.Constraint("Vertical", 2, 2, 3, 2),
    Sketcher.Constraint("DistanceY", 1, 1, 1, 2, Q("2 in")),
    Sketcher.Constraint("Radius", 3, Q("2.99 in")),
    Sketcher.Constraint("DistanceX", 0, 1, 0, 2, Q("0.25 in")),
])
pad4 = doc.addObject("PartDesign::Pad", "Pad003")
body.addObject(pad4)
pad4.Profile = sketch12
pad4.Length = Q("0.325 in")

sketch13 = doc.addObject("Sketcher::SketchObject", "Sketch012")
body.addObject(sketch13)
sketch13.AttachmentSupport = (doc.XZ_Plane, [""])
sketch13.MapMode = "FlatFace"
sketch13.AttachmentOffset = App.Placement(V(0, 0, 1 * 25.4), App.Rotation())
add_polygon(sketch13, [(-65.2, 7), (-65.2, 3.8), (4.6, 3.8), (4.6, 7)])
sketch13.addConstraint([
    Sketcher.Constraint("Vertical", 0),
    Sketcher.Constraint("Horizontal", 1),
    Sketcher.Constraint("Vertical", 2),
    Sketcher.Constraint("Horizontal", 3),
    Sketcher.Constraint("DistanceX", 1, 1, 1, 2, Q("2.75 in")),
    Sketcher.Constraint("DistanceY", 0, 2, 0, 1, Q("0.125 in")),
    Sketcher.Constraint("DistanceY", -1, 1, 0, 2, Q("0.15 in")),
    Sketcher.Constraint("DistanceX", 0, 2, -1, 1, 65.222585),
])
pad5 = doc.addObject("PartDesign::Pad", "Pad004")
body.addObject(pad5)
pad5.Profile = sketch13
pad5.Length = Q("0.1 in")
pad5.Reversed = True
doc.recompute()

mirrored = doc.addObject("PartDesign::Mirrored", "Mirrored")
body.addObject(mirrored)
mirrored.Originals = [pad5]
mirrored.MirrorPlane = (doc.XZ_Plane, [""])
body.Tip = mirrored

sketch14 = doc.addObject("Sketcher::SketchObject", "Sketch013")
body.addObject(sketch14)
sketch14.AttachmentSupport = (doc.XY_Plane, [""])
sketch14.MapMode = "FlatFace"
add_polygon(sketch14, [(-13, 32), (-7, 25), (-30, 25), (-23, 32)])
sketch14.addConstraint([
    Sketcher.Constraint("Horizontal", 1),
    Sketcher.Constraint("Horizontal", 3),
    Sketcher.Constraint("Perpendicular", 0, 2),
    Sketcher.Constraint("Equal", 0, 2),
    Sketcher.Constraint("DistanceX", 1, 2, 1, 1, Q("0.9 in")),
    Sketcher.Constraint("DistanceX", 3, 1, 3, 2, Q("0.4 in")),
    Sketcher.Constraint("DistanceY", -1, 1, 0, 2, Q("1 in")),
    Sketcher.Constraint("DistanceX", 0, 2, -1, 1, 6.802585),
])
pad6 = doc.addObject("PartDesign::Pad", "Pad005")
body.addObject(pad6)
pad6.Profile = sketch14
pad6.Length = Q("0.125 in")

sketch15 = doc.addObject("Sketcher::SketchObject", "Sketch014")
body.addObject(sketch15)
sketch15.AttachmentSupport = (doc.XY_Plane, [""])
sketch15.MapMode = "FlatFace"
sketch15.addGeometry([
    Part.Circle(V(-18.2, 27.9, 0), V(0, 0, 1), 1.2),
    Part.Circle(V(-17, -20.3, 0), V(0, 0, 1), 1.2),
    Part.Circle(V(-69, 12.7, 0), V(0, 0, 1), 1.2),
    Part.Circle(V(-69, -15.2, 0), V(0, 0, 1), 1.2),
], False)
sketch15.addConstraint([
    Sketcher.Constraint("Equal", 0, 1),
    Sketcher.Constraint("Equal", 1, 2),
    Sketcher.Constraint("Equal", 2, 3),
    Sketcher.Constraint("Vertical", 2, 3, 3, 3),
    Sketcher.Constraint("DistanceX", 2, 3, 0, 3, Q("2 in")),
    Sketcher.Constraint("Diameter", 0, Q("0.0935 in")),
    Sketcher.Constraint("DistanceY", -1, 1, 0, 3, Q("1.1 in")),
    Sketcher.Constraint("DistanceY", -1, 1, 2, 3, Q("0.5 in")),
    Sketcher.Constraint("DistanceY", 3, 3, -1, 1, Q("0.6 in")),
    Sketcher.Constraint("DistanceX", 0, 3, 1, 3, Q("0.05 in")),
    Sketcher.Constraint("DistanceX", 0, 3, -1, 1, 18.232585),
    Sketcher.Constraint("DistanceY", 1, 3, -1, 1, 20.303287),
])
pocket9 = doc.addObject("PartDesign::Pocket", "Pocket008")
body.addObject(pocket9)
pocket9.Profile = sketch15
pocket9.Type = "ThroughAll"
pocket9.Reversed = True

doc.recompute()
